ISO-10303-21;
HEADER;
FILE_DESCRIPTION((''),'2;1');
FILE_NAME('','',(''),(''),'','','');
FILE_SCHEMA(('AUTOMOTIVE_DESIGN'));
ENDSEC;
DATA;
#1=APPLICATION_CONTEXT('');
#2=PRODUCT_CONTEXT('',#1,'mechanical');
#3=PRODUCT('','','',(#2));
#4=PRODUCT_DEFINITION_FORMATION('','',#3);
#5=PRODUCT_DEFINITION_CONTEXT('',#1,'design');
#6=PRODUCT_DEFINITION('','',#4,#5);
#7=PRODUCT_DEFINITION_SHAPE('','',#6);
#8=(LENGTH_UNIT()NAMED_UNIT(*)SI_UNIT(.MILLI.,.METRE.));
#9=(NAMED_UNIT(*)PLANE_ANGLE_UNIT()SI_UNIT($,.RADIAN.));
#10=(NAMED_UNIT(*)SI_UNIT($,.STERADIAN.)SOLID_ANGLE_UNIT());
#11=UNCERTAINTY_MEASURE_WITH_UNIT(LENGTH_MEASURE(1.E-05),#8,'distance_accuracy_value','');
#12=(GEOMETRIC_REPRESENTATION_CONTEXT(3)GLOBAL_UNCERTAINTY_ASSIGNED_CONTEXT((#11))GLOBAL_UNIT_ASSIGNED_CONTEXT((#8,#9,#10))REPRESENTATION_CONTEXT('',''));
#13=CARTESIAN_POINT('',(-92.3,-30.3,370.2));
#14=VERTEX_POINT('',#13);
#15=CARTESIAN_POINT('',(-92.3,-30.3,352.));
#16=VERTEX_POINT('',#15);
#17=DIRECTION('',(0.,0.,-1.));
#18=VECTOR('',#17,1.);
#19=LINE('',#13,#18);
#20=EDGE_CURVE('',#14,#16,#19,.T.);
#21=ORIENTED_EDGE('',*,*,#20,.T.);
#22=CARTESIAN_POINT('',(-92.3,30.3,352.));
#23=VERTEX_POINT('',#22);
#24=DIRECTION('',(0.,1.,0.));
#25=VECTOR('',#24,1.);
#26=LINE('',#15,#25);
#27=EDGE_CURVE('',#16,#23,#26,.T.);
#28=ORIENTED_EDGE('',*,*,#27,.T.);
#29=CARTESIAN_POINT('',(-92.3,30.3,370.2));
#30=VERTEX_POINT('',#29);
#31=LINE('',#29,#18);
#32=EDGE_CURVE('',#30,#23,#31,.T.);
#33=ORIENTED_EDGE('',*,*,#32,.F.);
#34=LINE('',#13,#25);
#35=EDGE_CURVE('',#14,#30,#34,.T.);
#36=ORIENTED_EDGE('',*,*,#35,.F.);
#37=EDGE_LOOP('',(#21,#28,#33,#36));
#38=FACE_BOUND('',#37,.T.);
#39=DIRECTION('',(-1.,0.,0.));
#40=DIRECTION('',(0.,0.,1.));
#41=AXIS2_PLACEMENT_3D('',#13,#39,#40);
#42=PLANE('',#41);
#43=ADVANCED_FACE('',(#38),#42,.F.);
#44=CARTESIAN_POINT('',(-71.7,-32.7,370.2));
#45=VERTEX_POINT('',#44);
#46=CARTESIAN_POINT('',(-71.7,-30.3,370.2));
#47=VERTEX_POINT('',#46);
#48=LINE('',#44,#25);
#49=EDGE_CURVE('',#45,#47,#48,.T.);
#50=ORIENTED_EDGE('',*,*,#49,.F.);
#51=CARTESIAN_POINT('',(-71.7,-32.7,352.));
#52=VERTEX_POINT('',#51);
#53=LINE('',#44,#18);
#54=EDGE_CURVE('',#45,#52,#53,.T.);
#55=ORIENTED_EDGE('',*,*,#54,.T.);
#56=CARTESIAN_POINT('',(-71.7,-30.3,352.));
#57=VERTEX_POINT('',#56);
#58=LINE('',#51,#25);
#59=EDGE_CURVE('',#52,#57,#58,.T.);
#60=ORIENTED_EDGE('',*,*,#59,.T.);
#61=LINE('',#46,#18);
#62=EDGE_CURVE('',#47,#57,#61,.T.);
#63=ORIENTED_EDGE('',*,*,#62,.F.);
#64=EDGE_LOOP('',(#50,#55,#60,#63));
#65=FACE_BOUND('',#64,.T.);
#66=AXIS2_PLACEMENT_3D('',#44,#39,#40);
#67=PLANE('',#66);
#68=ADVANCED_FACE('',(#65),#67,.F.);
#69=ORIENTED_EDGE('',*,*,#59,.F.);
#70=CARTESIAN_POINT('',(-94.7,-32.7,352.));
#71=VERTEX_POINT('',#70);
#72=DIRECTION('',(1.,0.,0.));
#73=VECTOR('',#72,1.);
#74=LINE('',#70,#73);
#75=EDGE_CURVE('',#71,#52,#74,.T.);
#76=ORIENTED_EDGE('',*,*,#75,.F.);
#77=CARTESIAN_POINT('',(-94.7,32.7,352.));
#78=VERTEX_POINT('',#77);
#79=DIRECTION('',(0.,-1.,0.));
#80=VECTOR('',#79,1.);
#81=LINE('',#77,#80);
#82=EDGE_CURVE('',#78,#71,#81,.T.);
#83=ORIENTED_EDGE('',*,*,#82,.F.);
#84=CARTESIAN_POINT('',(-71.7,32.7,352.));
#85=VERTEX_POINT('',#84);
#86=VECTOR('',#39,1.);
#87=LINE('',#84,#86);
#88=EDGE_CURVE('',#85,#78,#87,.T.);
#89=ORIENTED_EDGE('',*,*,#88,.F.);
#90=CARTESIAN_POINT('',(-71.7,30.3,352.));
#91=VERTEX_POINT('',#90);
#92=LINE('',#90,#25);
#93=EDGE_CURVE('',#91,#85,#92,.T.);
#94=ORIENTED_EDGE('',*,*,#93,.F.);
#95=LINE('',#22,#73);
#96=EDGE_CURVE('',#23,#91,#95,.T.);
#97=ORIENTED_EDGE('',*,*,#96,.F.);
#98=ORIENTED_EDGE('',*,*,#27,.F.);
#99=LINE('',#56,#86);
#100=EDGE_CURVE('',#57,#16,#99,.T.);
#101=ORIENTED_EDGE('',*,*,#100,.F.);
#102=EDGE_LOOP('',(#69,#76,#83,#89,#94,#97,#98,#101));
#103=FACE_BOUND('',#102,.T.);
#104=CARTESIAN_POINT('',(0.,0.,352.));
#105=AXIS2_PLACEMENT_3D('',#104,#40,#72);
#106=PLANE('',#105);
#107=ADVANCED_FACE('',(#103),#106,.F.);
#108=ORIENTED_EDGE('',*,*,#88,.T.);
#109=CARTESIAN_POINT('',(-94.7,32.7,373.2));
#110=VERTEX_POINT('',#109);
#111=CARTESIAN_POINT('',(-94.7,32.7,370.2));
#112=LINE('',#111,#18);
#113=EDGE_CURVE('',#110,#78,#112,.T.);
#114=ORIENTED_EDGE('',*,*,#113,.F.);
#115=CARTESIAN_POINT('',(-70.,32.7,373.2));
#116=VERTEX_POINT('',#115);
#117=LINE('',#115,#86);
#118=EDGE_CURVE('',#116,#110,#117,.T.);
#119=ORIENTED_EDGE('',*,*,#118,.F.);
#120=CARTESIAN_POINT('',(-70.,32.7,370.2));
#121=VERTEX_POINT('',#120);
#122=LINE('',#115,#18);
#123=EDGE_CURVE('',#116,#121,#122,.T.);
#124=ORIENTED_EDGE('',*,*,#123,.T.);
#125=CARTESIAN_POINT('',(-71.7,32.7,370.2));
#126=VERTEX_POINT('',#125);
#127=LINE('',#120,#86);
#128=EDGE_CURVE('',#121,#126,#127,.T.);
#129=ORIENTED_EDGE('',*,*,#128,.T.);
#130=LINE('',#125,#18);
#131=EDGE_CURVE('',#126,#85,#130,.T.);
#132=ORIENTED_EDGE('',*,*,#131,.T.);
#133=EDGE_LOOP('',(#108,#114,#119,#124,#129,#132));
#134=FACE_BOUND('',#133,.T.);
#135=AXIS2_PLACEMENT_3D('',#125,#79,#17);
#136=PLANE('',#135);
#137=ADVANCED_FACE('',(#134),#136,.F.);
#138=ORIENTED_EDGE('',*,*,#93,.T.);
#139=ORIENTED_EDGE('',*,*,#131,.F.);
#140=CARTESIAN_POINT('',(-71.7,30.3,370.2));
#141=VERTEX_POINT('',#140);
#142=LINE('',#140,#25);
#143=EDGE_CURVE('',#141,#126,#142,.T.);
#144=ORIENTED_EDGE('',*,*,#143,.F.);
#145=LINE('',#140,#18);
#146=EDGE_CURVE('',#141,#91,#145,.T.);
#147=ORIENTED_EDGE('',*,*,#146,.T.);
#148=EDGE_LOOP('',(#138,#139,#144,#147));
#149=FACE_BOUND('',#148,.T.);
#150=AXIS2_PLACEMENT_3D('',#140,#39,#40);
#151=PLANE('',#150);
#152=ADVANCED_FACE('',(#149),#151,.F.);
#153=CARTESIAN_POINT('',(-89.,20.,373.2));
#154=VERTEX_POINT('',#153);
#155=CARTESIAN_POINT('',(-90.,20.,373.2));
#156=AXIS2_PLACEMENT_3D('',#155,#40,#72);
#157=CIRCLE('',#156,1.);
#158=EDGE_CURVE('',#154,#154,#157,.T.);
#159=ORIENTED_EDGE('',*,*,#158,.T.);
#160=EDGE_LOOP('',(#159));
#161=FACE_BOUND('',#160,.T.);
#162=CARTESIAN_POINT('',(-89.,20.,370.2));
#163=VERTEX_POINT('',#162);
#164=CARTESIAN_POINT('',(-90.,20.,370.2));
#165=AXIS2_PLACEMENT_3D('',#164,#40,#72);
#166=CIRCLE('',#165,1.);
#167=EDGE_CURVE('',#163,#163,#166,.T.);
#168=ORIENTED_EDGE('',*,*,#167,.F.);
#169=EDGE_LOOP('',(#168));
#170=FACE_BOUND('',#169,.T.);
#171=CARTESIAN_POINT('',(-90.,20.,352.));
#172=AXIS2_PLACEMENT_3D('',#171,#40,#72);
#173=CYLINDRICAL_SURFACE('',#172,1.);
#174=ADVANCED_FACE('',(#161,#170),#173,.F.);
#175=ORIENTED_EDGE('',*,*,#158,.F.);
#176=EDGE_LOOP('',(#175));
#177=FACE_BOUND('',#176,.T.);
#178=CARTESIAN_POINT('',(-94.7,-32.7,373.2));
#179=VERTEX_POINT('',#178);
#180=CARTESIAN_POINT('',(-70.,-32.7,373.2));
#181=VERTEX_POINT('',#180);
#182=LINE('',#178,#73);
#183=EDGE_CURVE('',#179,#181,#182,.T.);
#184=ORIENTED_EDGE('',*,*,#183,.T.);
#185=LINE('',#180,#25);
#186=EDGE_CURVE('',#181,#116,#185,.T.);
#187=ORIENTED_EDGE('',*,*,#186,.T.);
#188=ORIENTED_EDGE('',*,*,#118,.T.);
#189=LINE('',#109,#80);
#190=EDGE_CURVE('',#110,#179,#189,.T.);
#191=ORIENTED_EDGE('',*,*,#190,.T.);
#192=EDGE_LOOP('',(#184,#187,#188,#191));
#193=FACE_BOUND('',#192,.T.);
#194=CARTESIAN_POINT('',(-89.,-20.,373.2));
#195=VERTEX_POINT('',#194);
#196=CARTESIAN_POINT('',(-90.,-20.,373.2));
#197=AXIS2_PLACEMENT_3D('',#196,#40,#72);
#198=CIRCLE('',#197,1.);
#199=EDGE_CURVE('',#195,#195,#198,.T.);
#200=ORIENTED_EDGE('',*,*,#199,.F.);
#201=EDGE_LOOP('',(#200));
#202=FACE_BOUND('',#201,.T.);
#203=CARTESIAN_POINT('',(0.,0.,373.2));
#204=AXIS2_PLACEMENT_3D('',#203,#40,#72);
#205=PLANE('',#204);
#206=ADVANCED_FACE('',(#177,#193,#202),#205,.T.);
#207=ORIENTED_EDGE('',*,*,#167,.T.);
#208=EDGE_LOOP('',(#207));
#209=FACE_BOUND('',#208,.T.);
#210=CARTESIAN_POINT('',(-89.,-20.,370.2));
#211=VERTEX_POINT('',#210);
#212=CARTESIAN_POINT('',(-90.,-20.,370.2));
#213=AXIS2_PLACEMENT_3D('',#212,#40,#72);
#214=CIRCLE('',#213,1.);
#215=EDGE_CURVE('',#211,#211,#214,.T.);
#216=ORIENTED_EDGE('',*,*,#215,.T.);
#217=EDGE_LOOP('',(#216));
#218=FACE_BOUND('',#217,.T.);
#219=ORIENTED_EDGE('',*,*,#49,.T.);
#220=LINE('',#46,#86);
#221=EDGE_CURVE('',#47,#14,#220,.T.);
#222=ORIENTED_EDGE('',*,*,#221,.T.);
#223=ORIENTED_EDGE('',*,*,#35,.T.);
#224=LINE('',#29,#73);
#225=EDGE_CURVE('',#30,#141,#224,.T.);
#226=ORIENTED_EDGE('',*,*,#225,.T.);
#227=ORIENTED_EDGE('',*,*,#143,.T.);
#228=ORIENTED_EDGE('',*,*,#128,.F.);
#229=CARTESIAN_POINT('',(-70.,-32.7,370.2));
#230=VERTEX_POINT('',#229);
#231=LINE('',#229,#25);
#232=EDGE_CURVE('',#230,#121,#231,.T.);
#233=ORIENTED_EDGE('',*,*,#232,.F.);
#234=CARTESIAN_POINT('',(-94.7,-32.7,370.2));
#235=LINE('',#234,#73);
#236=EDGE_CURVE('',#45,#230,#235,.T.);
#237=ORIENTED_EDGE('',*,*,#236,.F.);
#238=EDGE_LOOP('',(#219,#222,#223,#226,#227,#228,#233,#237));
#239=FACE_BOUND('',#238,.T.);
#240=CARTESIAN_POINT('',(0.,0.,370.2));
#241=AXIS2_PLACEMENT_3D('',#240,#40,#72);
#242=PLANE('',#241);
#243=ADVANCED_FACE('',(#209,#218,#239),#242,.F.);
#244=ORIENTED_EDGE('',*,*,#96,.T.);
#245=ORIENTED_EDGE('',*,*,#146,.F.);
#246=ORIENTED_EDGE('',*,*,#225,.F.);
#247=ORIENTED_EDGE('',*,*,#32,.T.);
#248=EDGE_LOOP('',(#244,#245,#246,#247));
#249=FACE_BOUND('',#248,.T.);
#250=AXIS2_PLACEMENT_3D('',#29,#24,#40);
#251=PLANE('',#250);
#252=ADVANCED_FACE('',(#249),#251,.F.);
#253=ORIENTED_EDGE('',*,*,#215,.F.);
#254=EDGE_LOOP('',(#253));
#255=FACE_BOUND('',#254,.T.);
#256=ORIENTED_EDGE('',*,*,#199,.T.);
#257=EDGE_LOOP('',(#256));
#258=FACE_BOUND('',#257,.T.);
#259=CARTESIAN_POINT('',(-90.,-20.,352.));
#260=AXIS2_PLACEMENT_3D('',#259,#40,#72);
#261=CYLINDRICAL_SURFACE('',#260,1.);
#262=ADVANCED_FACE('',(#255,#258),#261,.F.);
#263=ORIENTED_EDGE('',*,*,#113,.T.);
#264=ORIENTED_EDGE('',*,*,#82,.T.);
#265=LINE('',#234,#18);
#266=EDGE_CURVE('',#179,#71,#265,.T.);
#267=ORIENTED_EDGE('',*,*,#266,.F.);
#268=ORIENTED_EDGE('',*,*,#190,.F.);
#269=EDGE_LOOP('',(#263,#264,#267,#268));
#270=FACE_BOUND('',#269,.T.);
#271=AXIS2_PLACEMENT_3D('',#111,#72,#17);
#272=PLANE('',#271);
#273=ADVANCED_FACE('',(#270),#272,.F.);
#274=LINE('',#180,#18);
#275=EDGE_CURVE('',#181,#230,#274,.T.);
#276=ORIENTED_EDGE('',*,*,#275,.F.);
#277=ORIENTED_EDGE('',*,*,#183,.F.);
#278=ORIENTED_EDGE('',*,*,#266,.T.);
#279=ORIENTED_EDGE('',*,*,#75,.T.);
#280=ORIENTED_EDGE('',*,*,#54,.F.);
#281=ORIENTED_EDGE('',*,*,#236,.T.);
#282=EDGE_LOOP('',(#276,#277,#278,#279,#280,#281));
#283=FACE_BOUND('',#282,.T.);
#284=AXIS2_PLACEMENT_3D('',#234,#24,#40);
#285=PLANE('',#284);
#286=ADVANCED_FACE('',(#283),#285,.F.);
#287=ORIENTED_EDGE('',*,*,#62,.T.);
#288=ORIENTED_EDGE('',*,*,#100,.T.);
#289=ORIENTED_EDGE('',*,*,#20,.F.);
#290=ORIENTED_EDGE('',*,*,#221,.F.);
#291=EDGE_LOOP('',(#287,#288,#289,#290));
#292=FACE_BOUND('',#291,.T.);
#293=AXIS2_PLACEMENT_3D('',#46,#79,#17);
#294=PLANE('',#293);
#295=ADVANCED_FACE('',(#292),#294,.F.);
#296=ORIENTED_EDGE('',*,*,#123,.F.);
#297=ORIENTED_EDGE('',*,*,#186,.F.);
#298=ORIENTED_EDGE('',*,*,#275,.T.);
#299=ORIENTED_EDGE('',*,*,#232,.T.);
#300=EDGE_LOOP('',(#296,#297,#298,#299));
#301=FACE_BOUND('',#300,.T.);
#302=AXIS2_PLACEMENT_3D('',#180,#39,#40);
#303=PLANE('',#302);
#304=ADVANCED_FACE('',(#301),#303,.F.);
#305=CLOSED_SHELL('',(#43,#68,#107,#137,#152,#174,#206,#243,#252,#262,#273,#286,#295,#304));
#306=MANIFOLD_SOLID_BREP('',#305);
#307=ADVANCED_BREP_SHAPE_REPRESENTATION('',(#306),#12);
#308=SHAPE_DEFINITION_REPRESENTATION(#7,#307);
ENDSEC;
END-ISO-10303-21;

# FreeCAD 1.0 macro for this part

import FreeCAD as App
import Part
import Sketcher

V = App.Vector
Q = App.Units.Quantity

doc = App.newDocument("Part")
body = doc.addObject("PartDesign::Body", "Body")

# Sketch on XY plane
sketch1 = doc.addObject("Sketcher::SketchObject", "Sketch")
body.addObject(sketch1)
sketch1.AttachmentSupport = (doc.XY_Plane, [""])
sketch1.MapMode = "FlatFace"
sketch1.AttachmentOffset = App.Placement(V(0, 0, 352), App.Rotation())
sketch1.addGeometry([
    Part.LineSegment(V(-94.7, -32.7, 0), V(-71.7, -32.7, 0)),  # 0
    Part.LineSegment(V(-71.7, -32.7, 0), V(-71.7, -30.3, 0)),  # 1
    Part.LineSegment(V(-71.7, -30.3, 0), V(-92.3, -30.3, 0)),  # 2
    Part.LineSegment(V(-92.3, -30.3, 0), V(-92.3, 30.3, 0)),  # 3
    Part.LineSegment(V(-92.3, 30.3, 0), V(-71.7, 30.3, 0)),  # 4
    Part.LineSegment(V(-71.7, 30.3, 0), V(-71.7, 32.7, 0)),  # 5
    Part.LineSegment(V(-71.7, 32.7, 0), V(-94.7, 32.7, 0)),  # 6
    Part.LineSegment(V(-94.7, 32.7, 0), V(-94.7, -32.7, 0)),  # 7
], False)
sketch1.addConstraint([
    Sketcher.Constraint("Coincident", 0, 2, 1, 1),
    Sketcher.Constraint("Coincident", 1, 2, 2, 1),
    Sketcher.Constraint("Coincident", 2, 2, 3, 1),
    Sketcher.Constraint("Coincident", 3, 2, 4, 1),
    Sketcher.Constraint("Coincident", 4, 2, 5, 1),
    Sketcher.Constraint("Coincident", 5, 2, 6, 1),
    Sketcher.Constraint("Coincident", 6, 2, 7, 1),
    Sketcher.Constraint("Coincident", 7, 2, 0, 1),
    Sketcher.Constraint("Horizontal", 0),
    Sketcher.Constraint("Vertical", 1),
    Sketcher.Constraint("Horizontal", 2),
    Sketcher.Constraint("Vertical", 3),
    Sketcher.Constraint("Horizontal", 4),
    Sketcher.Constraint("Vertical", 5),
    Sketcher.Constraint("Horizontal", 6),
    Sketcher.Constraint("Vertical", 7),
    Sketcher.Constraint("Symmetric", 1, 2, 4, 2, -1),
    Sketcher.Constraint("Equal", 1, 5),
    Sketcher.Constraint("DistanceX", 0, 1, 0, 2, Q("23 mm")),
    Sketcher.Constraint("DistanceX", 2, 2, 2, 1, Q("20.6 mm")),
    Sketcher.Constraint("DistanceY", 1, 1, 1, 2, Q("2.4 mm")),
    Sketcher.Constraint("DistanceY", 3, 1, 3, 2, Q("60.6 mm")),
    Sketcher.Constraint("DistanceX", 0, 2, -1, 1, Q("71.7 mm")),
])
pad1 = doc.addObject("PartDesign::Pad", "Pad")
body.addObject(pad1)
pad1.Profile = sketch1
pad1.Length = 18.2

# Sketch on XY plane
sketch2 = doc.addObject("Sketcher::SketchObject", "Sketch001")
body.addObject(sketch2)
sketch2.AttachmentSupport = (doc.XY_Plane, [""])
sketch2.MapMode = "FlatFace"
sketch2.AttachmentOffset = App.Placement(V(0, 0, 370.2), App.Rotation())
sketch2.addGeometry([
    Part.LineSegment(V(-95, 33, 0), V(-95, -33, 0)),
    Part.LineSegment(V(-95, -33, 0), V(-70, -33, 0)),
    Part.LineSegment(V(-70, -33, 0), V(-70, 33, 0)),
    Part.LineSegment(V(-70, 33, 0), V(-95, 33, 0)),
], False)
sketch2.addConstraint([
    Sketcher.Constraint("Coincident", 0, 2, 1, 1),
    Sketcher.Constraint("Coincident", 1, 2, 2, 1),
    Sketcher.Constraint("Coincident", 2, 2, 3, 1),
    Sketcher.Constraint("Coincident", 3, 2, 0, 1),
    Sketcher.Constraint("Vertical", 0),
    Sketcher.Constraint("Horizontal", 1),
    Sketcher.Constraint("Vertical", 2),
    Sketcher.Constraint("Horizontal", 3),
    Sketcher.Constraint("DistanceX", 1, 1, 1, 2, Q("24.7 mm")),
    Sketcher.Constraint("DistanceY", 0, 2, 0, 1, Q("65.4 mm")),
    Sketcher.Constraint("DistanceX", 1, 2, -1, 1, Q("70 mm")),
    Sketcher.Constraint("DistanceY", 0, 2, -1, 1, Q("32.7 mm")),
])
pad2 = doc.addObject("PartDesign::Pad", "Pad001")
body.addObject(pad2)
pad2.Profile = sketch2
pad2.Length = 3

# Sketch on XY plane
sketch3 = doc.addObject("Sketcher::SketchObject", "Sketch002")
body.addObject(sketch3)
sketch3.AttachmentSupport = (doc.XY_Plane, [""])
sketch3.MapMode = "FlatFace"
sketch3.AttachmentOffset = App.Placement(V(0, 0, 370.2), App.Rotation())
sketch3.addGeometry([
    Part.Circle(V(-90, 20, 0), V(0, 0, 1), 1),
    Part.Circle(V(-90, -20, 0), V(0, 0, 1), 1),
], False)
sketch3.addConstraint([
    Sketcher.Constraint("Equal", 0, 1),
    Sketcher.Constraint("Symmetric", 0, 3, 1, 3, -1),
    Sketcher.Constraint("Diameter", 0, Q("2 mm")),
    Sketcher.Constraint("DistanceX", 0, 3, -1, 1, Q("90 mm")),
    Sketcher.Constraint("DistanceY", -1, 1, 0, 3, Q("20 mm")),
])
pocket1 = doc.addObject("PartDesign::Pocket", "Pocket")
body.addObject(pocket1)
pocket1.Profile = sketch3
pocket1.Type = "ThroughAll"
pocket1.Midplane = True

doc.recompute()
